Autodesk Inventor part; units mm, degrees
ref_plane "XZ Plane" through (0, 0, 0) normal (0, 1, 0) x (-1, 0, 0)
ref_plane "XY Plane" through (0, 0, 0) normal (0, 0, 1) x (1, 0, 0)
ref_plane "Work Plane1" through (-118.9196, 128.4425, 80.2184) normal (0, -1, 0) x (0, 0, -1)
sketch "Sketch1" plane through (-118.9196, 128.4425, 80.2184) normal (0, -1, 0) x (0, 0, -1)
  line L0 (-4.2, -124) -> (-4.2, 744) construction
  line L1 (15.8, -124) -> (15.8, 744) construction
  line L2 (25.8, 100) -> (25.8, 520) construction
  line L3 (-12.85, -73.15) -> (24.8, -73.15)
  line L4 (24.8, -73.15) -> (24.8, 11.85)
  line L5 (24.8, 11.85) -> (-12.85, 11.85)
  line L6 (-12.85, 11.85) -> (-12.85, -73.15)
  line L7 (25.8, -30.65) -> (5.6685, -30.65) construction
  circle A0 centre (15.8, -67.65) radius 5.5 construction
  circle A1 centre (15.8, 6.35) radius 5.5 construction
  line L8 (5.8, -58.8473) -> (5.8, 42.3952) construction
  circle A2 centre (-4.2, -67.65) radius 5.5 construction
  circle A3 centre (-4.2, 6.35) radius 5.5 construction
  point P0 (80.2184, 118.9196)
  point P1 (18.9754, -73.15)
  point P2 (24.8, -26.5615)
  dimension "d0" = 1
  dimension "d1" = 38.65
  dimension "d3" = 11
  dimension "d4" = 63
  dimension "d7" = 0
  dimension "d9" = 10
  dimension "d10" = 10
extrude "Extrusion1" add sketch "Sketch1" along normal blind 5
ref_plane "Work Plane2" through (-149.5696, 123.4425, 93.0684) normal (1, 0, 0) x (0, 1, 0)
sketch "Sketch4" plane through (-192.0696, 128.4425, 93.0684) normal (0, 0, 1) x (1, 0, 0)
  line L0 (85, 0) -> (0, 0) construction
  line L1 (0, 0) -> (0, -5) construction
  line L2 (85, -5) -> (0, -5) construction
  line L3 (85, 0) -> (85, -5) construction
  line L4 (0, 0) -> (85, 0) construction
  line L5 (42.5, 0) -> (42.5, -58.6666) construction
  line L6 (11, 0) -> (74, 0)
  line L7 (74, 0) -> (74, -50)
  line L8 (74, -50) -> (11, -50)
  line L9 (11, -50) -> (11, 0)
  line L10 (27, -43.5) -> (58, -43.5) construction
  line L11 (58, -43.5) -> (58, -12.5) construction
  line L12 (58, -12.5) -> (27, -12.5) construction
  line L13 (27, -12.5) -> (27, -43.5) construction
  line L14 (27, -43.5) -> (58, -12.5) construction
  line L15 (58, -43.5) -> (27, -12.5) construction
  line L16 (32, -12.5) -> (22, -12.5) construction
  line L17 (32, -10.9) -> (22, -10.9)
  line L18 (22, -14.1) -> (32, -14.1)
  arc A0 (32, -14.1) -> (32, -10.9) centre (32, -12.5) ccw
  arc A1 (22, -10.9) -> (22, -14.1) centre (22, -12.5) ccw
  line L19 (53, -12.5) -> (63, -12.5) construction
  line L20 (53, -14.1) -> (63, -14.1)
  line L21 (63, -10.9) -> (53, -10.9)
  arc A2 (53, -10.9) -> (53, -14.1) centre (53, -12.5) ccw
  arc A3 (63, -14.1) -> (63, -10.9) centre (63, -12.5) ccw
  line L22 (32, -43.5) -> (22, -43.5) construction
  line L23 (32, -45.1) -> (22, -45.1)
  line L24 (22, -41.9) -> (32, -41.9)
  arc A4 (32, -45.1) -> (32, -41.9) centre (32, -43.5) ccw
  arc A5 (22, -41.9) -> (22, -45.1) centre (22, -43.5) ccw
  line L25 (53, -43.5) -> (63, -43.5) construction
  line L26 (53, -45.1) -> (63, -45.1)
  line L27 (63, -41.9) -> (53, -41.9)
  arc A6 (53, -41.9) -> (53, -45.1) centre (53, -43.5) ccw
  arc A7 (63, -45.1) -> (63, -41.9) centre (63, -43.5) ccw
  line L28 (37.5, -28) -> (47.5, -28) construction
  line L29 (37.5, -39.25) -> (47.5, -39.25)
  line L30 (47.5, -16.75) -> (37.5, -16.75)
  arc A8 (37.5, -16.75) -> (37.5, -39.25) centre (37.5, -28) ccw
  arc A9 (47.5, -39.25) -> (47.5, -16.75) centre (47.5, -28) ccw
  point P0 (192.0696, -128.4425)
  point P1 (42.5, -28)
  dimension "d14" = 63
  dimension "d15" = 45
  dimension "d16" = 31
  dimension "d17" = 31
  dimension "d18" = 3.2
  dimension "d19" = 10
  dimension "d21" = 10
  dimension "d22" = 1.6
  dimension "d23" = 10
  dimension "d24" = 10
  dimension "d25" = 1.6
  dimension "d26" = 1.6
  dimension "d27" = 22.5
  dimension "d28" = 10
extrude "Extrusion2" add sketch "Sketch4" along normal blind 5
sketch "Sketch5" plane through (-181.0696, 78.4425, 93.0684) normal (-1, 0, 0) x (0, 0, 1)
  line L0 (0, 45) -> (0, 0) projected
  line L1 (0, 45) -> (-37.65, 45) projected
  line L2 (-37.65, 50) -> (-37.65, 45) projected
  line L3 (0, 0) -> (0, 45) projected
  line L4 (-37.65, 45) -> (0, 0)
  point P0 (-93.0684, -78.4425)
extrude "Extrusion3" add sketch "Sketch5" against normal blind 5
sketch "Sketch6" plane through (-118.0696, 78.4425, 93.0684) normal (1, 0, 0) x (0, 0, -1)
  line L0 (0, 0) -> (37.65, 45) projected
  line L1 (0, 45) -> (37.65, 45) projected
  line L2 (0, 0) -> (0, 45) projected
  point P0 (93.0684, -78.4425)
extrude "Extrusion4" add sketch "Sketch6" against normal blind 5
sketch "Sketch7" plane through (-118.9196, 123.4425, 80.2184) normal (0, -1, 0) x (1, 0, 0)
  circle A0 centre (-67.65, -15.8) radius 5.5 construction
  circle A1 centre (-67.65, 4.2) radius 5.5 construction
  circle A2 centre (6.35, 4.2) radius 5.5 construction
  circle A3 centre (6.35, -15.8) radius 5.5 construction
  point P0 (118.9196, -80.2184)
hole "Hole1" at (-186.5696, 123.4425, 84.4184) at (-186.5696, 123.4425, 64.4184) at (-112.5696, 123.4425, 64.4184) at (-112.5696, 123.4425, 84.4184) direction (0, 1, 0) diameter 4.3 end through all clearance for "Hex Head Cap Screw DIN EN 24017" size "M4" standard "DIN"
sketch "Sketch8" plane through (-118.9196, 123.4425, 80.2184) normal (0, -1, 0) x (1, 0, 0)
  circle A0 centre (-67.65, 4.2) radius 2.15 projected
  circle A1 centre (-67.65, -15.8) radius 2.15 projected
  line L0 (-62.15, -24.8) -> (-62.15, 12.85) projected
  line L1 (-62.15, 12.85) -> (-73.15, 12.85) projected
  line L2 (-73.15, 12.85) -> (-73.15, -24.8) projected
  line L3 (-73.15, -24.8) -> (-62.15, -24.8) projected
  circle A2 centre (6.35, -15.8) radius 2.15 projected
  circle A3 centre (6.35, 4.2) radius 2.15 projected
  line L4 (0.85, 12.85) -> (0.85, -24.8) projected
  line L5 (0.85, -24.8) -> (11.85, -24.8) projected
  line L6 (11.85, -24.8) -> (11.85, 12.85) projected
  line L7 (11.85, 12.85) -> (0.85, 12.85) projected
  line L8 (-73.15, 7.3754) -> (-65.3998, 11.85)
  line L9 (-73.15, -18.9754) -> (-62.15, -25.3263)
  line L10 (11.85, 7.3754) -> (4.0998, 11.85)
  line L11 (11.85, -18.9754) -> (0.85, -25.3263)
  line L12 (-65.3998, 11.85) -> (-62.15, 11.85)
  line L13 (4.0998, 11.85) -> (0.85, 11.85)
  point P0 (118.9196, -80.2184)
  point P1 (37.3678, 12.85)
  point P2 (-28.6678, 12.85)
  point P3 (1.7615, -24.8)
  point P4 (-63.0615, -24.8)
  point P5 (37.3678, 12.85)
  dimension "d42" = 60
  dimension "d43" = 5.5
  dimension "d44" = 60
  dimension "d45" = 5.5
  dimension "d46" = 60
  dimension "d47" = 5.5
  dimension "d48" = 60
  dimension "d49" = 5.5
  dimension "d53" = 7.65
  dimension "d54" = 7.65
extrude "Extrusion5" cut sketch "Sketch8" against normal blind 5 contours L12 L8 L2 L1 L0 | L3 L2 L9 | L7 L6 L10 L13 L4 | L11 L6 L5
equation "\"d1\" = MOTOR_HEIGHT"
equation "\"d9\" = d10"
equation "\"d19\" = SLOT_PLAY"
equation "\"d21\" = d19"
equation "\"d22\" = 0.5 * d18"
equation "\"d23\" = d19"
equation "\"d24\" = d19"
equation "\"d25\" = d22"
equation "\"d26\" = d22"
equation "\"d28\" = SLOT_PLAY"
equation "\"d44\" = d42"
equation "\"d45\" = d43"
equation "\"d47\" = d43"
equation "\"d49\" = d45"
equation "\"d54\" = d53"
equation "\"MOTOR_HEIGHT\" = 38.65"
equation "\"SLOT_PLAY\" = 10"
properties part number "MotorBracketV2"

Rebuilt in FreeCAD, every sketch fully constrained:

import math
import FreeCAD as App
import Part
import Sketcher

V = App.Vector
Q = App.Units.Quantity


def add_polygon(sketch, points):
    """Adds a closed chain of lines whose ends are joined by coincident constraints."""
    first, n = sketch.GeometryCount, len(points)
    for a, b in zip(points, points[1:] + points[:1]):
        sketch.addGeometry(Part.LineSegment(App.Vector(*a, 0), App.Vector(*b, 0)), False)
    for i in range(n):
        sketch.addConstraint(Sketcher.Constraint("Coincident", first + i, 2, first + (i + 1) % n, 1))

doc = App.newDocument("Part")
body = doc.addObject("PartDesign::Body", "Body")

# Sketch on XZ plane
sketch1 = body.newObject("Sketcher::SketchObject", "Sketch")
sketch1.AttachmentSupport = (doc.getObject("XZ_Plane"), [""])
sketch1.MapMode = "FlatFace"
sketch1.AttachmentOffset = App.Placement(V(0, 0, -128.4425), App.Rotation())
add_polygon(sketch1, [(-107.0696, 93.0684), (-192.0696, 93.0684), (-192.0696, 55.4184), (-107.0696, 55.4184)])  # lines 0-3
sketch1.addConstraint([
    Sketcher.Constraint("Horizontal", 0),
    Sketcher.Constraint("Vertical", 1),
    Sketcher.Constraint("Horizontal", 2),
    Sketcher.Constraint("Vertical", 3),
    Sketcher.Constraint("DistanceX", 0, 2, 0, 1, Q("85 mm")),
    Sketcher.Constraint("DistanceY", 1, 2, 1, 1, Q("37.65 mm")),
    Sketcher.Constraint("DistanceX", 0, 2, -1, 1, Q("192.0696 mm")),
    Sketcher.Constraint("DistanceY", -1, 1, 0, 2, Q("93.0684 mm")),
])
pad1 = body.newObject("PartDesign::Pad", "Pad")
pad1.Profile = sketch1
pad1.Length = 5

# Sketch on XY plane
sketch2 = body.newObject("Sketcher::SketchObject", "Sketch001")
sketch2.AttachmentSupport = (doc.getObject("XY_Plane"), [""])
sketch2.MapMode = "FlatFace"
sketch2.AttachmentOffset = App.Placement(V(0, 0, 93.0684), App.Rotation())
add_polygon(sketch2, [(-118.0696, 128.4425), (-181.0696, 128.4425), (-181.0696, 78.4425), (-118.0696, 78.4425)])  # lines 0-3
sketch2.addGeometry(Part.ArcOfCircle(Part.Circle(V(-160.0696, 84.9425, 0), V(0, 0, 1), 1.6), math.radians(-90), math.radians(90)), False)  # 4
sketch2.addGeometry(Part.LineSegment(V(-160.0696, 83.3425, 0), V(-170.0696, 83.3425, 0)), False)  # 5
sketch2.addGeometry(Part.ArcOfCircle(Part.Circle(V(-170.0696, 84.9425, 0), V(0, 0, 1), 1.6), math.radians(90), math.radians(270)), False)  # 6
sketch2.addGeometry(Part.LineSegment(V(-170.0696, 86.5425, 0), V(-160.0696, 86.5425, 0)), False)  # 7
sketch2.addGeometry(Part.LineSegment(V(-129.0696, 83.3425, 0), V(-139.0696, 83.3425, 0)), False)  # 8
sketch2.addGeometry(Part.ArcOfCircle(Part.Circle(V(-139.0696, 84.9425, 0), V(0, 0, 1), 1.6), math.radians(90), math.radians(270)), False)  # 9
sketch2.addGeometry(Part.LineSegment(V(-139.0696, 86.5425, 0), V(-129.0696, 86.5425, 0)), False)  # 10
sketch2.addGeometry(Part.ArcOfCircle(Part.Circle(V(-129.0696, 84.9425, 0), V(0, 0, 1), 1.6), math.radians(-90), math.radians(90)), False)  # 11
sketch2.addGeometry(Part.LineSegment(V(-144.5696, 89.1925, 0), V(-154.5696, 89.1925, 0)), False)  # 12
sketch2.addGeometry(Part.ArcOfCircle(Part.Circle(V(-154.5696, 100.4425, 0), V(0, 0, 1), 11.25), math.radians(90), math.radians(270)), False)  # 13
sketch2.addGeometry(Part.LineSegment(V(-154.5696, 111.6925, 0), V(-144.5696, 111.6925, 0)), False)  # 14
sketch2.addGeometry(Part.ArcOfCircle(Part.Circle(V(-144.5696, 100.4425, 0), V(0, 0, 1), 11.25), math.radians(-90), math.radians(90)), False)  # 15
sketch2.addGeometry(Part.LineSegment(V(-170.0696, 117.5425, 0), V(-160.0696, 117.5425, 0)), False)  # 16
sketch2.addGeometry(Part.ArcOfCircle(Part.Circle(V(-160.0696, 115.9425, 0), V(0, 0, 1), 1.6), math.radians(-90), math.radians(90)), False)  # 17
sketch2.addGeometry(Part.LineSegment(V(-160.0696, 114.3425, 0), V(-170.0696, 114.3425, 0)), False)  # 18
sketch2.addGeometry(Part.ArcOfCircle(Part.Circle(V(-170.0696, 115.9425, 0), V(0, 0, 1), 1.6), math.radians(90), math.radians(270)), False)  # 19
sketch2.addGeometry(Part.LineSegment(V(-129.0696, 114.3425, 0), V(-139.0696, 114.3425, 0)), False)  # 20
sketch2.addGeometry(Part.ArcOfCircle(Part.Circle(V(-139.0696, 115.9425, 0), V(0, 0, 1), 1.6), math.radians(90), math.radians(270)), False)  # 21
sketch2.addGeometry(Part.LineSegment(V(-139.0696, 117.5425, 0), V(-129.0696, 117.5425, 0)), False)  # 22
sketch2.addGeometry(Part.ArcOfCircle(Part.Circle(V(-129.0696, 115.9425, 0), V(0, 0, 1), 1.6), math.radians(-90), math.radians(90)), False)  # 23
sketch2.addConstraint([
    Sketcher.Constraint("Tangent", 4, 1, 5, 1),
    Sketcher.Constraint("Tangent", 5, 2, 6, 2),
    Sketcher.Constraint("Tangent", 6, 1, 7, 1),
    Sketcher.Constraint("Tangent", 7, 2, 4, 2),
    Sketcher.Constraint("Tangent", 8, 2, 9, 2),
    Sketcher.Constraint("Tangent", 9, 1, 10, 1),
    Sketcher.Constraint("Tangent", 10, 2, 11, 2),
    Sketcher.Constraint("Tangent", 11, 1, 8, 1),
    Sketcher.Constraint("Tangent", 12, 2, 13, 2),
    Sketcher.Constraint("Tangent", 13, 1, 14, 1),
    Sketcher.Constraint("Tangent", 14, 2, 15, 2),
    Sketcher.Constraint("Tangent", 15, 1, 12, 1),
    Sketcher.Constraint("Tangent", 16, 2, 17, 2),
    Sketcher.Constraint("Tangent", 17, 1, 18, 1),
    Sketcher.Constraint("Tangent", 18, 2, 19, 2),
    Sketcher.Constraint("Tangent", 19, 1, 16, 1),
    Sketcher.Constraint("Tangent", 20, 2, 21, 2),
    Sketcher.Constraint("Tangent", 21, 1, 22, 1),
    Sketcher.Constraint("Tangent", 22, 2, 23, 2),
    Sketcher.Constraint("Tangent", 23, 1, 20, 1),
    Sketcher.Constraint("Horizontal", 0),
    Sketcher.Constraint("Vertical", 1),
    Sketcher.Constraint("Horizontal", 2),
    Sketcher.Constraint("Vertical", 3),
    Sketcher.Constraint("Horizontal", 5),
    Sketcher.Constraint("Horizontal", 7),
    Sketcher.Constraint("Horizontal", 8),
    Sketcher.Constraint("Horizontal", 10),
    Sketcher.Constraint("Horizontal", 12),
    Sketcher.Constraint("Horizontal", 14),
    Sketcher.Constraint("Horizontal", 16),
    Sketcher.Constraint("Horizontal", 18),
    Sketcher.Constraint("Horizontal", 20),
    Sketcher.Constraint("Horizontal", 22),
    Sketcher.Constraint("Equal", 6, 9),
    Sketcher.Constraint("Equal", 11, 17),
    Sketcher.Constraint("Equal", 19, 21),
    Sketcher.Constraint("Horizontal", 6, 3, 9, 3),
    Sketcher.Constraint("Horizontal", 19, 3, 21, 3),
    Sketcher.Constraint("Vertical", 4, 3, 17, 3),
    Sketcher.Constraint("Vertical", 6, 3, 19, 3),
    Sketcher.Constraint("Vertical", 9, 3, 21, 3),
    Sketcher.Constraint("Vertical", 11, 3, 23, 3),
    Sketcher.Constraint("Equal", 7, 8),
    Sketcher.Constraint("Equal", 10, 12),
    Sketcher.Constraint("Radius", 4, Q("1.6 mm")),
    Sketcher.Constraint("DistanceX", 0, 2, 0, 1, Q("63 mm")),
    Sketcher.Constraint("DistanceX", 5, 2, 5, 1, Q("10 mm")),
    Sketcher.Constraint("Radius", 13, Q("11.25 mm")),
    Sketcher.Constraint("DistanceX", 6, 3, 9, 3, Q("31 mm")),
    Sketcher.Constraint("DistanceY", 4, 3, 17, 3, Q("31 mm")),
    Sketcher.Constraint("DistanceY", 1, 2, 1, 1, Q("50 mm")),
    Sketcher.Constraint("DistanceX", 0, 2, 19, 3, Q("11 mm")),
    Sketcher.Constraint("DistanceY", 13, 3, 0, 2, Q("28 mm")),
    Sketcher.Constraint("DistanceX", 4, 3, 13, 3, Q("5.5 mm")),
    Sketcher.Constraint("DistanceY", 4, 3, 13, 3, Q("15.5 mm")),
    Sketcher.Constraint("DistanceX", 4, 3, -1, 1, Q("160.0696 mm")),
    Sketcher.Constraint("DistanceY", -1, 1, 4, 3, Q("84.9425 mm")),
])
pad2 = body.newObject("PartDesign::Pad", "Pad001")
pad2.Profile = sketch2
pad2.Length = 5

# Sketch on YZ plane
sketch3 = body.newObject("Sketcher::SketchObject", "Sketch002")
sketch3.AttachmentSupport = (doc.getObject("YZ_Plane"), [""])
sketch3.MapMode = "FlatFace"
sketch3.AttachmentOffset = App.Placement(V(0, 0, -181.0696), App.Rotation())
add_polygon(sketch3, [(78.4425, 93.0684), (123.4425, 93.0684), (123.4425, 55.4184)])  # lines 0-2
sketch3.addConstraint([
    Sketcher.Constraint("Horizontal", 0),
    Sketcher.Constraint("Vertical", 1),
    Sketcher.Constraint("DistanceX", 0, 1, 0, 2, Q("45 mm")),
    Sketcher.Constraint("DistanceY", 1, 2, 1, 1, Q("37.65 mm")),
    Sketcher.Constraint("DistanceX", -1, 1, 0, 2, Q("123.4425 mm")),
    Sketcher.Constraint("DistanceY", -1, 1, 0, 2, Q("93.0684 mm")),
])
pad3 = body.newObject("PartDesign::Pad", "Pad002")
pad3.Profile = sketch3
pad3.Length = 5

# Sketch on YZ plane
sketch4 = body.newObject("Sketcher::SketchObject", "Sketch003")
sketch4.AttachmentSupport = (doc.getObject("YZ_Plane"), [""])
sketch4.MapMode = "FlatFace"
sketch4.AttachmentOffset = App.Placement(V(0, 0, -118.0696), App.Rotation())
add_polygon(sketch4, [(123.4425, 93.0684), (78.4425, 93.0684), (123.4425, 55.4184)])  # lines 0-2
sketch4.addConstraint([
    Sketcher.Constraint("Horizontal", 0),
    Sketcher.Constraint("Vertical", 2),
    Sketcher.Constraint("DistanceX", 0, 2, 0, 1, Q("45 mm")),
    Sketcher.Constraint("DistanceY", 2, 1, 2, 2, Q("37.65 mm")),
    Sketcher.Constraint("DistanceX", -1, 1, 0, 2, Q("78.4425 mm")),
    Sketcher.Constraint("DistanceY", -1, 1, 0, 2, Q("93.0684 mm")),
])
pad4 = body.newObject("PartDesign::Pad", "Pad003")
pad4.Profile = sketch4
pad4.Length = 5
pad4.Reversed = True

# Sketch on XZ plane
sketch5 = body.newObject("Sketcher::SketchObject", "Sketch004")
sketch5.AttachmentSupport = (doc.getObject("XZ_Plane"), [""])
sketch5.MapMode = "FlatFace"
sketch5.AttachmentOffset = App.Placement(V(0, 0, -123.4425), App.Rotation())
sketch5.addGeometry([
    Part.Circle(V(-186.5696, 84.4184, 0), V(0, 0, 1), 2.15),
    Part.Circle(V(-186.5696, 64.4184, 0), V(0, 0, 1), 2.15),
    Part.Circle(V(-112.5696, 64.4184, 0), V(0, 0, 1), 2.15),
    Part.Circle(V(-112.5696, 84.4184, 0), V(0, 0, 1), 2.15),
], False)
sketch5.addConstraint([
    Sketcher.Constraint("Equal", 0, 1),
    Sketcher.Constraint("Equal", 1, 2),
    Sketcher.Constraint("Equal", 2, 3),
    Sketcher.Constraint("Horizontal", 1, 3, 2, 3),
    Sketcher.Constraint("Horizontal", 0, 3, 3, 3),
    Sketcher.Constraint("Vertical", 0, 3, 1, 3),
    Sketcher.Constraint("Vertical", 2, 3, 3, 3),
    Sketcher.Constraint("Diameter", 0, Q("4.3 mm")),
    Sketcher.Constraint("DistanceY", 1, 3, 0, 3, Q("20 mm")),
    Sketcher.Constraint("DistanceX", 1, 3, 2, 3, Q("74 mm")),
    Sketcher.Constraint("DistanceX", 0, 3, -1, 1, Q("186.5696 mm")),
    Sketcher.Constraint("DistanceY", -1, 1, 0, 3, Q("84.4184 mm")),
])
doc.recompute()
hole = body.newObject("PartDesign::Hole", "Hole")
hole.Profile = sketch5
hole.ThreadType = "None"
hole.Diameter = 4.3
hole.DepthType = "ThroughAll"

# Sketch on XZ plane
sketch6 = body.newObject("Sketcher::SketchObject", "Sketch005")
sketch6.AttachmentSupport = (doc.getObject("XZ_Plane"), [""])
sketch6.MapMode = "FlatFace"
sketch6.AttachmentOffset = App.Placement(V(0, 0, -123.4425), App.Rotation())
add_polygon(sketch6, [(-184.3194, 92.0684), (-181.0696, 92.0684), (-181.0696, 93.0684), (-192.0696, 93.0684), (-192.0696, 87.5938)])  # lines 0-4
add_polygon(sketch6, [(-192.0696, 55.4184), (-181.981172, 55.4184), (-192.0696, 61.243)])  # lines 5-7
add_polygon(sketch6, [(-107.0696, 93.0684), (-118.0696, 93.0684), (-118.0696, 92.0684), (-114.8198, 92.0684), (-107.0696, 87.5938)])  # lines 8-12
add_polygon(sketch6, [(-107.0696, 61.243), (-117.158028, 55.4184), (-107.0696, 55.4184)])  # lines 13-15
sketch6.addConstraint([
    Sketcher.Constraint("Horizontal", 0),
    Sketcher.Constraint("Vertical", 1),
    Sketcher.Constraint("Horizontal", 2),
    Sketcher.Constraint("Vertical", 3),
    Sketcher.Constraint("Horizontal", 5),
    Sketcher.Constraint("Vertical", 7),
    Sketcher.Constraint("Horizontal", 8),
    Sketcher.Constraint("Vertical", 9),
    Sketcher.Constraint("Horizontal", 10),
    Sketcher.Constraint("Vertical", 12),
    Sketcher.Constraint("Horizontal", 14),
    Sketcher.Constraint("Vertical", 15),
    Sketcher.Constraint("Parallel", 6, 11),
    Sketcher.Constraint("Parallel", 4, 13),
    Sketcher.Constraint("Horizontal", 2, 2, 8, 2),
    Sketcher.Constraint("Horizontal", 4, 2, 9, 2),
    Sketcher.Constraint("Horizontal", 3, 2, 11, 2),
    Sketcher.Constraint("Horizontal", 7, 2, 13, 2),
    Sketcher.Constraint("Horizontal", 6, 2, 15, 2),
    Sketcher.Constraint("Vertical", 3, 2, 6, 2),
    Sketcher.Constraint("Vertical", 12, 2, 14, 2),
    Sketcher.Constraint("Equal", 2, 8),
    Sketcher.Constraint("Equal", 0, 10),
    Sketcher.Constraint("DistanceX", 2, 2, 2, 1, Q("11 mm")),
    Sketcher.Constraint("DistanceY", 1, 1, 1, 2, Q("1 mm")),
    Sketcher.Constraint("Angle", 4, Q("30 deg")),
    Sketcher.Constraint("DistanceX", 1, 2, 8, 2, Q("63 mm")),
    Sketcher.Constraint("DistanceY", 5, 2, 0, 2, Q("36.65 mm")),
    Sketcher.Constraint("DistanceX", 0, 1, 0, 2, Q("3.2498 mm")),
    Sketcher.Constraint("DistanceX", 5, 1, 5, 2, Q("10.0884 mm")),
    Sketcher.Constraint("DistanceY", -1, 1, 6, 2, Q("61.243 mm")),
    Sketcher.Constraint("DistanceX", 13, 2, -1, 1, Q("117.158 mm")),
])
pocket1 = body.newObject("PartDesign::Pocket", "Pocket")
pocket1.Profile = sketch6
pocket1.Length = 5

doc.recompute()
